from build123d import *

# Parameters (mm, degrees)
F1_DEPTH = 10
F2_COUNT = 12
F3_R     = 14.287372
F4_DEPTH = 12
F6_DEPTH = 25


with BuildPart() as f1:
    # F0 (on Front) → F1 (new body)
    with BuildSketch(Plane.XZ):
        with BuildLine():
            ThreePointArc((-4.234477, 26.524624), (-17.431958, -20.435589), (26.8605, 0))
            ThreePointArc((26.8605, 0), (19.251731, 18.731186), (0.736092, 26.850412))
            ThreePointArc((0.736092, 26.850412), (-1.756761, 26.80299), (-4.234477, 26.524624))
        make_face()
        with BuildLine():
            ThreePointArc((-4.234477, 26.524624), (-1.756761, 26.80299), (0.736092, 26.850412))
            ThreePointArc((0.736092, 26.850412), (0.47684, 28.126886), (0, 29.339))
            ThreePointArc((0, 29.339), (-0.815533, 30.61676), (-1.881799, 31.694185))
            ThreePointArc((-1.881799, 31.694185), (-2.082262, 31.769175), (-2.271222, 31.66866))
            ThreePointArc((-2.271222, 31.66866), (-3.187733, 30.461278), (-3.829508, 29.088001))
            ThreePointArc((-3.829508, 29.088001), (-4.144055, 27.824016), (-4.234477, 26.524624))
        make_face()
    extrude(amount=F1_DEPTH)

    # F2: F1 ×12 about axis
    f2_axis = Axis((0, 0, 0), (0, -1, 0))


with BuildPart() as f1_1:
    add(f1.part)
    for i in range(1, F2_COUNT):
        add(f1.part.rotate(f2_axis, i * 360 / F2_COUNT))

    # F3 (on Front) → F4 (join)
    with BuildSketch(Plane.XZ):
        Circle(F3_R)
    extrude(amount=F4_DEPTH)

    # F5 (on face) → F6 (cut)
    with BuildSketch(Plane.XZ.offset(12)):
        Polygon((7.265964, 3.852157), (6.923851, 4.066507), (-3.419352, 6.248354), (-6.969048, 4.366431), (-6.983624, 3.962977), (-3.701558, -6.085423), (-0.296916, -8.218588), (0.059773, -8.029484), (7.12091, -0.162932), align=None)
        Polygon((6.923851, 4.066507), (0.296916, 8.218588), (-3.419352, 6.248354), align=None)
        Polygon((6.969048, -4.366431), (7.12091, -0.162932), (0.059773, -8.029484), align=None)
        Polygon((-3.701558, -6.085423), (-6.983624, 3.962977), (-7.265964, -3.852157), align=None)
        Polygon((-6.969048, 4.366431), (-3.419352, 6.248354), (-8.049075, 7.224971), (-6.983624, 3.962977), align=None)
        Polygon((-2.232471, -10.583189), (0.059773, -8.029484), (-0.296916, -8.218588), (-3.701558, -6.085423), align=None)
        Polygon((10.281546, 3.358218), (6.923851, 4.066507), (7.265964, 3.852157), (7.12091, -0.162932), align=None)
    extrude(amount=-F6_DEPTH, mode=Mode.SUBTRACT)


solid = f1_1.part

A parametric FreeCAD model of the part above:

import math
import FreeCAD as App
import Part
import Sketcher

V = App.Vector

doc = App.newDocument("Part")
body = doc.addObject("PartDesign::Body", "Body")

sketch1 = body.newObject("Sketcher::SketchObject", "Sketch")
sketch1.AttachmentSupport = (doc.getObject("XZ_Plane"), [""])
sketch1.MapMode = "FlatFace"
sketch1.addGeometry([
    Part.ArcOfCircle(Part.Circle(V(0, 0, 0), V(0, 0, 1), 26.86), math.radians(99), math.radians(360)),
    Part.ArcOfCircle(Part.Circle(V(0, 0, 0), V(0, 0, 1), 26.86), math.radians(0), math.radians(88)),
    Part.ArcOfCircle(Part.Circle(V(-6.69, 26.01, 0), V(0, 0, 1), 7.48), math.radians(6.48), math.radians(26.47)),
    Part.ArcOfCircle(Part.Circle(V(-6.41, 26.15, 0), V(0, 0, 1), 7.16), math.radians(26), math.radians(51)),
    Part.ArcOfCircle(Part.Circle(V(-2.07, 31.51, 0), V(0, 0, 1), 0.26), math.radians(45), math.radians(142)),
    Part.ArcOfCircle(Part.Circle(V(2.94, 26.76, 0), V(0, 0, 1), 7.16), math.radians(137), math.radians(161)),
    Part.ArcOfCircle(Part.Circle(V(3.24, 26.66, 0), V(0, 0, 1), 7.48), math.radians(161.03), math.radians(181.02)),
], False)
sketch1.addConstraint([
    Sketcher.Constraint("Tangent", 0, 2, 1, 1),
    Sketcher.Constraint("Coincident", 1, 2, 2, 1),
    Sketcher.Constraint("Tangent", 2, 2, 3, 1),
    Sketcher.Constraint("Coincident", 3, 2, 4, 1),
    Sketcher.Constraint("Coincident", 4, 2, 5, 1),
    Sketcher.Constraint("Tangent", 5, 2, 6, 1),
    Sketcher.Constraint("Coincident", 6, 2, 0, 1),
    Sketcher.Constraint("Coincident", 0, 3, -1, 1),
    Sketcher.Constraint("Equal", 0, 1),
    Sketcher.Constraint("Equal", 3, 5),
    Sketcher.Constraint("PointOnObject", 0, 2, -1),
    Sketcher.Constraint("PointOnObject", 2, 2, -2),
    Sketcher.Constraint("Radius", 0, 26.8605),
    Sketcher.Constraint("Radius", 6, 7.477139),
    Sketcher.Constraint("DistanceY", -1, 1, 2, 2, 29.339),
    Sketcher.Constraint("DistanceY", -1, 1, 5, 2, 29.088001),
    Sketcher.Constraint("Radius", 2, 7.477062),
    Sketcher.Constraint("Radius", 3, 7.159535),
    Sketcher.Constraint("Radius", 4, 0.260454),
    Sketcher.Constraint("DistanceX", 3, 2, -1, 1, 1.881799),
    Sketcher.Constraint("DistanceX", 3, 3, -1, 1, 6.408911),
    Sketcher.Constraint("DistanceY", -1, 1, 4, 3, 31.509279),
    Sketcher.Constraint("DistanceX", -1, 1, 5, 3, 2.941129),
    Sketcher.Constraint("DistanceY", -1, 1, 5, 3, 26.760471),
])
pad1 = body.newObject("PartDesign::Pad", "Pad")
pad1.Profile = sketch1
pad1.Length = 10
body2 = doc.addObject("PartDesign::Body", "Body001")
doc.recompute()

body2.BaseFeature = body
doc.recompute()

body3 = doc.addObject("PartDesign::Body", "Body002")
body3.BaseFeature = body
body3.Placement = App.Placement(V(0, 0, 0), App.Rotation(V(0, -1, 0), 30))
boolean = body2.newObject("PartDesign::Boolean", "Boolean")
boolean.Type = "Fuse"
boolean.addObjects([body3])
doc.recompute()

body4 = doc.addObject("PartDesign::Body", "Body003")
body4.BaseFeature = body
body4.Placement = App.Placement(V(0, 0, 0), App.Rotation(V(0, -1, 0), 60))
boolean2 = body2.newObject("PartDesign::Boolean", "Boolean001")
boolean2.Type = "Fuse"
boolean2.addObjects([body4])
doc.recompute()

body5 = doc.addObject("PartDesign::Body", "Body004")
body5.BaseFeature = body
body5.Placement = App.Placement(V(0, 0, 0), App.Rotation(V(0, -1, 0), 90))
boolean3 = body2.newObject("PartDesign::Boolean", "Boolean002")
boolean3.Type = "Fuse"
boolean3.addObjects([body5])
doc.recompute()

body6 = doc.addObject("PartDesign::Body", "Body005")
body6.BaseFeature = body
body6.Placement = App.Placement(V(0, 0, 0), App.Rotation(V(0, -1, 0), 120))
boolean4 = body2.newObject("PartDesign::Boolean", "Boolean003")
boolean4.Type = "Fuse"
boolean4.addObjects([body6])
doc.recompute()

body7 = doc.addObject("PartDesign::Body", "Body006")
body7.BaseFeature = body
body7.Placement = App.Placement(V(0, 0, 0), App.Rotation(V(0, -1, 0), 150))
boolean5 = body2.newObject("PartDesign::Boolean", "Boolean004")
boolean5.Type = "Fuse"
boolean5.addObjects([body7])
doc.recompute()

body8 = doc.addObject("PartDesign::Body", "Body007")
body8.BaseFeature = body
body8.Placement = App.Placement(V(0, 0, 0), App.Rotation(V(0, -1, 0), 180))
boolean6 = body2.newObject("PartDesign::Boolean", "Boolean005")
boolean6.Type = "Fuse"
boolean6.addObjects([body8])
doc.recompute()

body9 = doc.addObject("PartDesign::Body", "Body008")
body9.BaseFeature = body
body9.Placement = App.Placement(V(0, 0, 0), App.Rotation(V(0, -1, 0), 210))
boolean7 = body2.newObject("PartDesign::Boolean", "Boolean006")
boolean7.Type = "Fuse"
boolean7.addObjects([body9])
doc.recompute()

body10 = doc.addObject("PartDesign::Body", "Body009")
body10.BaseFeature = body
body10.Placement = App.Placement(V(0, 0, 0), App.Rotation(V(0, -1, 0), 240))
boolean8 = body2.newObject("PartDesign::Boolean", "Boolean007")
boolean8.Type = "Fuse"
boolean8.addObjects([body10])
doc.recompute()

body11 = doc.addObject("PartDesign::Body", "Body010")
body11.BaseFeature = body
body11.Placement = App.Placement(V(0, 0, 0), App.Rotation(V(0, -1, 0), 270))
boolean9 = body2.newObject("PartDesign::Boolean", "Boolean008")
boolean9.Type = "Fuse"
boolean9.addObjects([body11])
doc.recompute()

body12 = doc.addObject("PartDesign::Body", "Body011")
body12.BaseFeature = body
body12.Placement = App.Placement(V(0, 0, 0), App.Rotation(V(0, -1, 0), 300))
boolean10 = body2.newObject("PartDesign::Boolean", "Boolean009")
boolean10.Type = "Fuse"
boolean10.addObjects([body12])
doc.recompute()

body.Placement = App.Placement(V(0, 0, 0), App.Rotation(V(0, -1, 0), 330))
boolean11 = body2.newObject("PartDesign::Boolean", "Boolean010")
boolean11.Type = "Fuse"
boolean11.addObjects([body])

sketch2 = body2.newObject("Sketcher::SketchObject", "Sketch001")
sketch2.AttachmentSupport = (doc.getObject("XZ_Plane001"), [""])
sketch2.MapMode = "FlatFace"
sketch2.addGeometry(Part.Circle(V(0, 0, 0), V(0, 0, 1), 14), False)
sketch2.addConstraint([
    Sketcher.Constraint("Coincident", 0, 3, -1, 1),
    Sketcher.Constraint("Diameter", 0, 28.574744),
])
pad2 = body2.newObject("PartDesign::Pad", "Pad001")
pad2.Profile = sketch2
pad2.Length = 12

sketch3 = body2.newObject("Sketcher::SketchObject", "Sketch002")
sketch3.AttachmentSupport = (doc.getObject("XZ_Plane001"), [""])
sketch3.MapMode = "FlatFace"
sketch3.AttachmentOffset = App.Placement(V(0, 0, 12), App.Rotation())
sketch3.addGeometry([
    Part.LineSegment(V(6.923851, 4.066507, 0), V(0.296916, 8.218588, 0)),
    Part.LineSegment(V(0.296916, 8.218588, 0), V(-3.419352, 6.248354, 0)),
    Part.LineSegment(V(-3.419352, 6.248354, 0), V(-8.049075, 7.224971, 0)),
    Part.LineSegment(V(-8.049075, 7.224971, 0), V(-6.983624, 3.962977, 0)),
    Part.LineSegment(V(-6.983624, 3.962977, 0), V(-7.265964, -3.852157, 0)),
    Part.LineSegment(V(-7.265964, -3.852157, 0), V(-3.701558, -6.085423, 0)),
    Part.LineSegment(V(-3.701558, -6.085423, 0), V(-2.232471, -10.583189, 0)),
    Part.LineSegment(V(-2.232471, -10.583189, 0), V(0.059773, -8.029484, 0)),
    Part.LineSegment(V(0.059773, -8.029484, 0), V(6.969048, -4.366431, 0)),
    Part.LineSegment(V(6.969048, -4.366431, 0), V(7.12091, -0.162932, 0)),
    Part.LineSegment(V(7.12091, -0.162932, 0), V(10.281546, 3.358218, 0)),
    Part.LineSegment(V(10.281546, 3.358218, 0), V(6.923851, 4.066507, 0)),
], False)
sketch3.addConstraint([
    Sketcher.Constraint("Coincident", 0, 2, 1, 1),
    Sketcher.Constraint("Coincident", 1, 2, 2, 1),
    Sketcher.Constraint("Coincident", 2, 2, 3, 1),
    Sketcher.Constraint("Coincident", 3, 2, 4, 1),
    Sketcher.Constraint("Coincident", 4, 2, 5, 1),
    Sketcher.Constraint("Coincident", 5, 2, 6, 1),
    Sketcher.Constraint("Coincident", 6, 2, 7, 1),
    Sketcher.Constraint("Coincident", 7, 2, 8, 1),
    Sketcher.Constraint("Coincident", 8, 2, 9, 1),
    Sketcher.Constraint("Coincident", 9, 2, 10, 1),
    Sketcher.Constraint("Coincident", 10, 2, 11, 1),
    Sketcher.Constraint("Coincident", 11, 2, 0, 1),
    Sketcher.Constraint("DistanceY", 5, 2, 3, 2, 10.0484),
    Sketcher.Constraint("DistanceY", 8, 2, 9, 2, 4.203499),
    Sketcher.Constraint("DistanceX", 8, 2, 10, 2, 3.312498),
    Sketcher.Constraint("Distance", 1, 4.206242),
    Sketcher.Constraint("Distance", 2, 4.731608),
    Sketcher.Constraint("Distance", 5, 4.206241),
    Sketcher.Constraint("Distance", 6, 4.731608),
    Sketcher.Constraint("Distance", 9, 4.206241),
    Sketcher.Constraint("Distance", 10, 4.731608),
    Sketcher.Constraint("DistanceX", 1, 2, -1, 1, 3.419352),
    Sketcher.Constraint("DistanceY", -1, 1, 2, 2, 7.224971),
    Sketcher.Constraint("DistanceX", 6, 2, -1, 1, 2.232471),
    Sketcher.Constraint("DistanceY", 6, 2, -1, 1, 10.583189),
    Sketcher.Constraint("DistanceY", 8, 2, -1, 1, 4.366431),
    Sketcher.Constraint("DistanceX", -1, 1, 9, 2, 7.12091),
    Sketcher.Constraint("DistanceX", -1, 1, 11, 2, 6.923851),
    Sketcher.Constraint("DistanceX", 2, 2, 0, 2, 8.345991),
    Sketcher.Constraint("DistanceX", 2, 2, 3, 2, 1.065451),
    Sketcher.Constraint("DistanceX", 3, 2, 1, 2, 3.564272),
    Sketcher.Constraint("DistanceY", 3, 2, 0, 2, 4.255611),
    Sketcher.Constraint("DistanceX", 4, 2, 3, 2, 0.28234),
    Sketcher.Constraint("DistanceX", 5, 2, 7, 2, 3.761331),
    Sketcher.Constraint("DistanceY", 7, 2, 5, 2, 1.944061),
    Sketcher.Constraint("DistanceY", 10, 2, 11, 2, 0.708289),
])
pocket1 = body2.newObject("PartDesign::Pocket", "Pocket")
pocket1.Profile = sketch3
pocket1.Length = 25

doc.recompute()
